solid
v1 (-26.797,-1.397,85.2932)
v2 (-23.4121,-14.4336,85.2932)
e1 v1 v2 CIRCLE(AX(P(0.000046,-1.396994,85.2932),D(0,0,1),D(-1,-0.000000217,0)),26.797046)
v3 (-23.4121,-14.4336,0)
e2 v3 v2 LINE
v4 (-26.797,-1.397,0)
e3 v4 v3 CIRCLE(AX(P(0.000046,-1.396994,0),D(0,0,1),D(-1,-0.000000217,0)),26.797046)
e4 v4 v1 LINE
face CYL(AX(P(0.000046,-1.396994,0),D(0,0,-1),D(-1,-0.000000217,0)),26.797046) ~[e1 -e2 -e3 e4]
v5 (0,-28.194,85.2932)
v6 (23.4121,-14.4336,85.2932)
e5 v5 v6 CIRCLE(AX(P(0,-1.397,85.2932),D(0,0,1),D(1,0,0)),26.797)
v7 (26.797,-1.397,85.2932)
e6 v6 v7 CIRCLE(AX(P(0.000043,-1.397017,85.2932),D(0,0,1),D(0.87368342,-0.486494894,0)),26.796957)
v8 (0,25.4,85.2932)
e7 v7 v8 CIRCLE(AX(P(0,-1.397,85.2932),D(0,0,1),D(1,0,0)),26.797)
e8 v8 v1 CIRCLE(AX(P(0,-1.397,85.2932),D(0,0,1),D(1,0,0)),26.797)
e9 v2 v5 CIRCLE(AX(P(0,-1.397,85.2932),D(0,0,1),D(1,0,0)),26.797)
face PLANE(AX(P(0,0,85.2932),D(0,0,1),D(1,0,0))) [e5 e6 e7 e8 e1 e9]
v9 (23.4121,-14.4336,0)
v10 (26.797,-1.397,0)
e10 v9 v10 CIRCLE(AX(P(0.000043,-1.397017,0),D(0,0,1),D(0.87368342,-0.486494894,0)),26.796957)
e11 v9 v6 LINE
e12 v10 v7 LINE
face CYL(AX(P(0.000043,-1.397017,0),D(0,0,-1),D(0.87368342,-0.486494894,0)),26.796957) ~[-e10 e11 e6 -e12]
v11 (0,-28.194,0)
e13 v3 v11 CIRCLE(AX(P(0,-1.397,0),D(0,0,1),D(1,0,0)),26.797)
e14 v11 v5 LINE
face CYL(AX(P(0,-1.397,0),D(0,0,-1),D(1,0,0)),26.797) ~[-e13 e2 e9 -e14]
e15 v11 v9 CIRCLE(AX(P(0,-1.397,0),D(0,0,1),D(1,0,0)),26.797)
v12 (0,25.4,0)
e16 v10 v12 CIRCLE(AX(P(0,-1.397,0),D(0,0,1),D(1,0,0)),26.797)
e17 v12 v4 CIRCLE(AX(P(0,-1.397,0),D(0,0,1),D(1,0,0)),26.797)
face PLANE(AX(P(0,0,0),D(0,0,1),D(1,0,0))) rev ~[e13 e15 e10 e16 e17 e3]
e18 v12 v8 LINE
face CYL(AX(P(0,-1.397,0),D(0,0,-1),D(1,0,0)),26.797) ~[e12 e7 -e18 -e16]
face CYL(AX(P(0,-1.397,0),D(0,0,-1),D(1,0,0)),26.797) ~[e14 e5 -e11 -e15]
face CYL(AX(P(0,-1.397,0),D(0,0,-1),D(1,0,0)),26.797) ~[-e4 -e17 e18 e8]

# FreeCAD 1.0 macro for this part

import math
import FreeCAD as App
import Part
import Sketcher
from FreeCAD import Vector
Q = App.Units.Quantity

doc = App.newDocument("Part")
body = doc.addObject("PartDesign::Body", "Body")

sketch1 = doc.addObject("Sketcher::SketchObject", "Sketch")
body.addObject(sketch1)
sketch1.AttachmentSupport = (doc.XY_Plane, [""])
sketch1.MapMode = "FlatFace"
sketch1.addGeometry(Part.ArcOfCircle(Part.Circle(Vector(0, -1, 0), Vector(0, 0, 1), 27), math.radians(180), math.radians(209)), False)
sketch1.addGeometry(Part.ArcOfCircle(Part.Circle(Vector(0, -1, 0), Vector(0, 0, 1), 27), math.radians(-151), math.radians(-29)), False)
sketch1.addGeometry(Part.ArcOfCircle(Part.Circle(Vector(0, -1, 0), Vector(0, 0, 1), 27), math.radians(-29), math.radians(0)), False)
sketch1.addGeometry(Part.ArcOfCircle(Part.Circle(Vector(0, -1, 0), Vector(0, 0, 1), 27), math.radians(0), math.radians(180)), False)
sketch1.addConstraint(Sketcher.Constraint("Tangent", 0, 2, 1, 1))
sketch1.addConstraint(Sketcher.Constraint("Tangent", 1, 2, 2, 1))
sketch1.addConstraint(Sketcher.Constraint("Tangent", 2, 2, 3, 1))
sketch1.addConstraint(Sketcher.Constraint("Tangent", 3, 2, 0, 1))
sketch1.addConstraint(Sketcher.Constraint("Equal", 0, 1))
sketch1.addConstraint(Sketcher.Constraint("Symmetric", 0, 2, 1, 2, -2))
sketch1.addConstraint(Sketcher.Constraint("Horizontal", 3, 3, 2, 2))
sketch1.addConstraint(Sketcher.Constraint("Horizontal", 2, 2, 3, 2))
sketch1.addConstraint(Sketcher.Constraint("Radius", 0, Q("1.055 in")))
sketch1.addConstraint(Sketcher.Constraint("DistanceY", 0, 3, -1, 1, Q("0.055 in")))
sketch1.addConstraint(Sketcher.Constraint("DistanceX", 0, 2, -1, 1, 23.412))
pad1 = doc.addObject("PartDesign::Pad", "Pad")
body.addObject(pad1)
pad1.Profile = sketch1
pad1.Length = Q("3.358 in")

doc.recompute()
